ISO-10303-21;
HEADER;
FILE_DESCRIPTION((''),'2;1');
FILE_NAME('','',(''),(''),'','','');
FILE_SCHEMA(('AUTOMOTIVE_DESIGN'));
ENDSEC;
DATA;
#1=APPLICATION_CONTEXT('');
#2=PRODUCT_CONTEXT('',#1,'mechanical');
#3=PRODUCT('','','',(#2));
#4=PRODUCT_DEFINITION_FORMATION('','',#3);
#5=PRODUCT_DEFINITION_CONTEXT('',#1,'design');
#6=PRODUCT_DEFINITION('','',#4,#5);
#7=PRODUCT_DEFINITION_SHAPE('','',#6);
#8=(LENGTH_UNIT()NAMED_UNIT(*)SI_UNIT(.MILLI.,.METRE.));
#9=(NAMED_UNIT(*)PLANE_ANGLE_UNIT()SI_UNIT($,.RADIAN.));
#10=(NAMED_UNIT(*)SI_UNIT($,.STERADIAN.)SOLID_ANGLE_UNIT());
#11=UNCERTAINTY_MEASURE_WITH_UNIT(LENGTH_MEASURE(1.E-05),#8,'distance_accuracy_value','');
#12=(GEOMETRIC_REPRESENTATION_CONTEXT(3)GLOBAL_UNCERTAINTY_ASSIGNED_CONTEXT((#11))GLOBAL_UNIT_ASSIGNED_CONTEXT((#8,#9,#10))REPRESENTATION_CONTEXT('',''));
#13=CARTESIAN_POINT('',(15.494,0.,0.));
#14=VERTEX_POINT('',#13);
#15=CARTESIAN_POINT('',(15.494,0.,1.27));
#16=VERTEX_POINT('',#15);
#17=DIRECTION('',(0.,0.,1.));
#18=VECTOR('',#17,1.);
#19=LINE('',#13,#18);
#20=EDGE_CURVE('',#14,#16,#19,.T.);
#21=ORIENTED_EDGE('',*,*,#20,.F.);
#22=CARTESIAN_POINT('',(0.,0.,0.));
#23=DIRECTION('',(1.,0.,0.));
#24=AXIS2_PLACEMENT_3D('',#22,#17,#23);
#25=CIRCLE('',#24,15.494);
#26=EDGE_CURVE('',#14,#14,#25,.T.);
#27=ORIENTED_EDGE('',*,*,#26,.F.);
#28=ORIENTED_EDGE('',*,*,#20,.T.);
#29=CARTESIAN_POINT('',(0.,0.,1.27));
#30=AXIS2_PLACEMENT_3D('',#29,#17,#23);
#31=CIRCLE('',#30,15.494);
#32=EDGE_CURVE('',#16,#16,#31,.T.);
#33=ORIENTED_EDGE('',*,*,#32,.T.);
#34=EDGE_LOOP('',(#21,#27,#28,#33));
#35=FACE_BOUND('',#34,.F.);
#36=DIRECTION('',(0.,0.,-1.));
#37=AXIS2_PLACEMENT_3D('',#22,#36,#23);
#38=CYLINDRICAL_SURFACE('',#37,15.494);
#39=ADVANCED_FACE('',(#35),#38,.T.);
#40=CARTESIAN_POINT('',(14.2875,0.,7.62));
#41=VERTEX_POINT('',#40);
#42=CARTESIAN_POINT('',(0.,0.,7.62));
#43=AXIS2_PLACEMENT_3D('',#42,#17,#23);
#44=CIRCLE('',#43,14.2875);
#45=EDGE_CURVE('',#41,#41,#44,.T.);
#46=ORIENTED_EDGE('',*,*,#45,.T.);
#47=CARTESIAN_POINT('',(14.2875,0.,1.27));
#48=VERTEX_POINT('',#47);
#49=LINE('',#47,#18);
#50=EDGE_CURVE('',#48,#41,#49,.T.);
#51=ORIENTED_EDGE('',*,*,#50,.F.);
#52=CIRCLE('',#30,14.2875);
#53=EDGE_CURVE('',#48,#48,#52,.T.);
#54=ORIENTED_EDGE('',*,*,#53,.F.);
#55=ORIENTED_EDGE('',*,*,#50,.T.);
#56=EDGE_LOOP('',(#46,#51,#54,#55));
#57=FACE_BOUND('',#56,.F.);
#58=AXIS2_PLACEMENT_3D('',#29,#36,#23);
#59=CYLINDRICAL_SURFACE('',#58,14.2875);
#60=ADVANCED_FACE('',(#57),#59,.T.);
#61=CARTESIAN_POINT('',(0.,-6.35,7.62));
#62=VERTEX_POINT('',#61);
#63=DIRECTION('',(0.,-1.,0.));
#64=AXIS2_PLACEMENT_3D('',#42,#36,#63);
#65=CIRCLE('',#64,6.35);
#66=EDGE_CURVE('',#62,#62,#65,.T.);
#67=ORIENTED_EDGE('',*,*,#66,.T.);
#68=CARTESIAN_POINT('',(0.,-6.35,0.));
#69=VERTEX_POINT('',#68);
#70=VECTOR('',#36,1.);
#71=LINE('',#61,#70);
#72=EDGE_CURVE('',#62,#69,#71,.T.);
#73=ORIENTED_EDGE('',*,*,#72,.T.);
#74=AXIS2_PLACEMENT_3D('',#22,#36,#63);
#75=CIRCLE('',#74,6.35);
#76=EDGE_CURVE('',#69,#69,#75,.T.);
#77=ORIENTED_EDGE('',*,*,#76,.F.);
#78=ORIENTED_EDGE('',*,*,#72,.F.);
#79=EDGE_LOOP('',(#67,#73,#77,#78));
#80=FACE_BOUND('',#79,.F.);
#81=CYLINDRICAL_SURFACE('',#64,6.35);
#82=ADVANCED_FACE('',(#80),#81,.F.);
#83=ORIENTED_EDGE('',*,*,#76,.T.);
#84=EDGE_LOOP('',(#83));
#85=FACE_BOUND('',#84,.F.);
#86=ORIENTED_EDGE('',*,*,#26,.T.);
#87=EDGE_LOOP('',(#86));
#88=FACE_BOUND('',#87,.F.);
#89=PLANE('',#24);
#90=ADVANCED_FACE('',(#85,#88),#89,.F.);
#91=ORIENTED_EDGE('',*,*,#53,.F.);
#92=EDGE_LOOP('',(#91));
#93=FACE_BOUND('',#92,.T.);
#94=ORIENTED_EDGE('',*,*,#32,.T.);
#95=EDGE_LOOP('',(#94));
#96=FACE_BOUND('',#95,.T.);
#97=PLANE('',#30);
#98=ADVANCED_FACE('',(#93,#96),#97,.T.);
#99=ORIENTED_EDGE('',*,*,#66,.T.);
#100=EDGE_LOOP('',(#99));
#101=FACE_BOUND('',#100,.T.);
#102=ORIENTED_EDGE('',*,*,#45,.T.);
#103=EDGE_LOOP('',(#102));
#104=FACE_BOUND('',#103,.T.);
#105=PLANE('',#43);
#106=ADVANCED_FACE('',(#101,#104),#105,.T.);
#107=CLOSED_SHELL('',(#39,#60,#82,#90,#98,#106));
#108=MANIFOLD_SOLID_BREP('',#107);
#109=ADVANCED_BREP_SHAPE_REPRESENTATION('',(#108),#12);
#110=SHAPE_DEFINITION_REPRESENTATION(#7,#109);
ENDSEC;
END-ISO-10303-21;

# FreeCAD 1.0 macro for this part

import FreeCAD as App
import Part
import Sketcher

V = App.Vector
Q = App.Units.Quantity

doc = App.newDocument("Part")
body = doc.addObject("PartDesign::Body", "Body")

# Sketch on XY plane
sketch1 = body.newObject("Sketcher::SketchObject", "Sketch")
sketch1.AttachmentSupport = (doc.getObject("XY_Plane"), [""])
sketch1.MapMode = "FlatFace"
sketch1.addGeometry(Part.Circle(V(0, 0, 0), V(0, 0, 1), 15), False)
sketch1.addConstraint([
    Sketcher.Constraint("Coincident", 0, 3, -1, 1),
    Sketcher.Constraint("Diameter", 0, Q("1.22 in")),
])
pad1 = body.newObject("PartDesign::Pad", "Pad")
pad1.Profile = sketch1
pad1.Length = Q("0.05 in")

# Sketch on XY plane
sketch2 = body.newObject("Sketcher::SketchObject", "Sketch001")
sketch2.AttachmentSupport = (doc.getObject("XY_Plane"), [""])
sketch2.MapMode = "FlatFace"
sketch2.AttachmentOffset = App.Placement(V(0, 0, 0.05 * 25.4), App.Rotation())
sketch2.addGeometry(Part.Circle(V(0, 0, 0), V(0, 0, 1), 14), False)
sketch2.addConstraint([
    Sketcher.Constraint("Coincident", 0, 3, -1, 1),
    Sketcher.Constraint("Diameter", 0, Q("1.125 in")),
])
pad2 = body.newObject("PartDesign::Pad", "Pad001")
pad2.Profile = sketch2
pad2.Length = Q("0.25 in")

# Sketch on XY plane
sketch3 = body.newObject("Sketcher::SketchObject", "Sketch002")
sketch3.AttachmentSupport = (doc.getObject("XY_Plane"), [""])
sketch3.MapMode = "FlatFace"
sketch3.AttachmentOffset = App.Placement(V(0, 0, 0.3 * 25.4), App.Rotation())
sketch3.addGeometry(Part.Circle(V(0, 0, 0), V(0, 0, 1), 6), False)
sketch3.addConstraint([
    Sketcher.Constraint("Coincident", 0, 3, -1, 1),
    Sketcher.Constraint("Diameter", 0, Q("0.5 in")),
])
doc.recompute()
hole = body.newObject("PartDesign::Hole", "Hole")
hole.Profile = sketch3
hole.ThreadType = "None"
hole.Diameter = Q("0.5 in")
hole.DepthType = "ThroughAll"

doc.recompute()
